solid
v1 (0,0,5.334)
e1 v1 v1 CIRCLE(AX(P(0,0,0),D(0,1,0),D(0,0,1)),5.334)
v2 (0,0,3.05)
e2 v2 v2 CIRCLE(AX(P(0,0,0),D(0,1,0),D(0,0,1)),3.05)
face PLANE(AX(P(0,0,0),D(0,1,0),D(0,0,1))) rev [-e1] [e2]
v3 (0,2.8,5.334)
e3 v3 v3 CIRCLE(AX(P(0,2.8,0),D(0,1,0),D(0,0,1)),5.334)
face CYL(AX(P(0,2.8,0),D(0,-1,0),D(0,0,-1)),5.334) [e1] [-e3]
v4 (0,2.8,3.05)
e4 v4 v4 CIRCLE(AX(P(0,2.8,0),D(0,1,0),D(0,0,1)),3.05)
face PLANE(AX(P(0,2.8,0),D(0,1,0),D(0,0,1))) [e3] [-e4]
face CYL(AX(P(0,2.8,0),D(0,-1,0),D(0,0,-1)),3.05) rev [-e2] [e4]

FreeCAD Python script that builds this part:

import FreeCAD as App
import Part
import Sketcher
Q = App.Units.Quantity

doc = App.newDocument("Part")
params = doc.addObject("Spreadsheet::Sheet", "Params")
for row, (alias, value) in enumerate([
    ("sketch1_diameter", "6.1 mm"),
    ("pad1_length", "2.8 mm"),
], start=1):
    params.set(f"A{row}", alias)
    params.set(f"B{row}", "=" + value)
    params.setAlias(f"B{row}", alias)

body = doc.addObject("PartDesign::Body", "Body")

# Sketch on XZ plane
sketch1 = body.newObject("Sketcher::SketchObject", "Sketch")
sketch1.AttachmentSupport = (doc.getObject("XZ_Plane"), [""])
sketch1.MapMode = "FlatFace"
sketch1.addGeometry([
    Part.Circle(App.Vector(0, 0, 0), App.Vector(0, 0, 1), 5.334),
    Part.Circle(App.Vector(0, 0, 0), App.Vector(0, 0, 1), 3.05),
], False)
sketch1.addConstraint([
    Sketcher.Constraint("Coincident", 0, 3, -1, 1),
    Sketcher.Constraint("Coincident", 1, 3, -1, 1),
    Sketcher.Constraint("Diameter", 1, Q("6.1 mm")),
    Sketcher.Constraint("Diameter", 0, Q("10.668 mm")),
])
sketch1.setExpression("Constraints[2]", "Params.sketch1_diameter")
pad1 = body.newObject("PartDesign::Pad", "Pad")
pad1.Profile = sketch1
pad1.setExpression("Length", "Params.pad1_length")
pad1.Reversed = True

doc.recompute()
